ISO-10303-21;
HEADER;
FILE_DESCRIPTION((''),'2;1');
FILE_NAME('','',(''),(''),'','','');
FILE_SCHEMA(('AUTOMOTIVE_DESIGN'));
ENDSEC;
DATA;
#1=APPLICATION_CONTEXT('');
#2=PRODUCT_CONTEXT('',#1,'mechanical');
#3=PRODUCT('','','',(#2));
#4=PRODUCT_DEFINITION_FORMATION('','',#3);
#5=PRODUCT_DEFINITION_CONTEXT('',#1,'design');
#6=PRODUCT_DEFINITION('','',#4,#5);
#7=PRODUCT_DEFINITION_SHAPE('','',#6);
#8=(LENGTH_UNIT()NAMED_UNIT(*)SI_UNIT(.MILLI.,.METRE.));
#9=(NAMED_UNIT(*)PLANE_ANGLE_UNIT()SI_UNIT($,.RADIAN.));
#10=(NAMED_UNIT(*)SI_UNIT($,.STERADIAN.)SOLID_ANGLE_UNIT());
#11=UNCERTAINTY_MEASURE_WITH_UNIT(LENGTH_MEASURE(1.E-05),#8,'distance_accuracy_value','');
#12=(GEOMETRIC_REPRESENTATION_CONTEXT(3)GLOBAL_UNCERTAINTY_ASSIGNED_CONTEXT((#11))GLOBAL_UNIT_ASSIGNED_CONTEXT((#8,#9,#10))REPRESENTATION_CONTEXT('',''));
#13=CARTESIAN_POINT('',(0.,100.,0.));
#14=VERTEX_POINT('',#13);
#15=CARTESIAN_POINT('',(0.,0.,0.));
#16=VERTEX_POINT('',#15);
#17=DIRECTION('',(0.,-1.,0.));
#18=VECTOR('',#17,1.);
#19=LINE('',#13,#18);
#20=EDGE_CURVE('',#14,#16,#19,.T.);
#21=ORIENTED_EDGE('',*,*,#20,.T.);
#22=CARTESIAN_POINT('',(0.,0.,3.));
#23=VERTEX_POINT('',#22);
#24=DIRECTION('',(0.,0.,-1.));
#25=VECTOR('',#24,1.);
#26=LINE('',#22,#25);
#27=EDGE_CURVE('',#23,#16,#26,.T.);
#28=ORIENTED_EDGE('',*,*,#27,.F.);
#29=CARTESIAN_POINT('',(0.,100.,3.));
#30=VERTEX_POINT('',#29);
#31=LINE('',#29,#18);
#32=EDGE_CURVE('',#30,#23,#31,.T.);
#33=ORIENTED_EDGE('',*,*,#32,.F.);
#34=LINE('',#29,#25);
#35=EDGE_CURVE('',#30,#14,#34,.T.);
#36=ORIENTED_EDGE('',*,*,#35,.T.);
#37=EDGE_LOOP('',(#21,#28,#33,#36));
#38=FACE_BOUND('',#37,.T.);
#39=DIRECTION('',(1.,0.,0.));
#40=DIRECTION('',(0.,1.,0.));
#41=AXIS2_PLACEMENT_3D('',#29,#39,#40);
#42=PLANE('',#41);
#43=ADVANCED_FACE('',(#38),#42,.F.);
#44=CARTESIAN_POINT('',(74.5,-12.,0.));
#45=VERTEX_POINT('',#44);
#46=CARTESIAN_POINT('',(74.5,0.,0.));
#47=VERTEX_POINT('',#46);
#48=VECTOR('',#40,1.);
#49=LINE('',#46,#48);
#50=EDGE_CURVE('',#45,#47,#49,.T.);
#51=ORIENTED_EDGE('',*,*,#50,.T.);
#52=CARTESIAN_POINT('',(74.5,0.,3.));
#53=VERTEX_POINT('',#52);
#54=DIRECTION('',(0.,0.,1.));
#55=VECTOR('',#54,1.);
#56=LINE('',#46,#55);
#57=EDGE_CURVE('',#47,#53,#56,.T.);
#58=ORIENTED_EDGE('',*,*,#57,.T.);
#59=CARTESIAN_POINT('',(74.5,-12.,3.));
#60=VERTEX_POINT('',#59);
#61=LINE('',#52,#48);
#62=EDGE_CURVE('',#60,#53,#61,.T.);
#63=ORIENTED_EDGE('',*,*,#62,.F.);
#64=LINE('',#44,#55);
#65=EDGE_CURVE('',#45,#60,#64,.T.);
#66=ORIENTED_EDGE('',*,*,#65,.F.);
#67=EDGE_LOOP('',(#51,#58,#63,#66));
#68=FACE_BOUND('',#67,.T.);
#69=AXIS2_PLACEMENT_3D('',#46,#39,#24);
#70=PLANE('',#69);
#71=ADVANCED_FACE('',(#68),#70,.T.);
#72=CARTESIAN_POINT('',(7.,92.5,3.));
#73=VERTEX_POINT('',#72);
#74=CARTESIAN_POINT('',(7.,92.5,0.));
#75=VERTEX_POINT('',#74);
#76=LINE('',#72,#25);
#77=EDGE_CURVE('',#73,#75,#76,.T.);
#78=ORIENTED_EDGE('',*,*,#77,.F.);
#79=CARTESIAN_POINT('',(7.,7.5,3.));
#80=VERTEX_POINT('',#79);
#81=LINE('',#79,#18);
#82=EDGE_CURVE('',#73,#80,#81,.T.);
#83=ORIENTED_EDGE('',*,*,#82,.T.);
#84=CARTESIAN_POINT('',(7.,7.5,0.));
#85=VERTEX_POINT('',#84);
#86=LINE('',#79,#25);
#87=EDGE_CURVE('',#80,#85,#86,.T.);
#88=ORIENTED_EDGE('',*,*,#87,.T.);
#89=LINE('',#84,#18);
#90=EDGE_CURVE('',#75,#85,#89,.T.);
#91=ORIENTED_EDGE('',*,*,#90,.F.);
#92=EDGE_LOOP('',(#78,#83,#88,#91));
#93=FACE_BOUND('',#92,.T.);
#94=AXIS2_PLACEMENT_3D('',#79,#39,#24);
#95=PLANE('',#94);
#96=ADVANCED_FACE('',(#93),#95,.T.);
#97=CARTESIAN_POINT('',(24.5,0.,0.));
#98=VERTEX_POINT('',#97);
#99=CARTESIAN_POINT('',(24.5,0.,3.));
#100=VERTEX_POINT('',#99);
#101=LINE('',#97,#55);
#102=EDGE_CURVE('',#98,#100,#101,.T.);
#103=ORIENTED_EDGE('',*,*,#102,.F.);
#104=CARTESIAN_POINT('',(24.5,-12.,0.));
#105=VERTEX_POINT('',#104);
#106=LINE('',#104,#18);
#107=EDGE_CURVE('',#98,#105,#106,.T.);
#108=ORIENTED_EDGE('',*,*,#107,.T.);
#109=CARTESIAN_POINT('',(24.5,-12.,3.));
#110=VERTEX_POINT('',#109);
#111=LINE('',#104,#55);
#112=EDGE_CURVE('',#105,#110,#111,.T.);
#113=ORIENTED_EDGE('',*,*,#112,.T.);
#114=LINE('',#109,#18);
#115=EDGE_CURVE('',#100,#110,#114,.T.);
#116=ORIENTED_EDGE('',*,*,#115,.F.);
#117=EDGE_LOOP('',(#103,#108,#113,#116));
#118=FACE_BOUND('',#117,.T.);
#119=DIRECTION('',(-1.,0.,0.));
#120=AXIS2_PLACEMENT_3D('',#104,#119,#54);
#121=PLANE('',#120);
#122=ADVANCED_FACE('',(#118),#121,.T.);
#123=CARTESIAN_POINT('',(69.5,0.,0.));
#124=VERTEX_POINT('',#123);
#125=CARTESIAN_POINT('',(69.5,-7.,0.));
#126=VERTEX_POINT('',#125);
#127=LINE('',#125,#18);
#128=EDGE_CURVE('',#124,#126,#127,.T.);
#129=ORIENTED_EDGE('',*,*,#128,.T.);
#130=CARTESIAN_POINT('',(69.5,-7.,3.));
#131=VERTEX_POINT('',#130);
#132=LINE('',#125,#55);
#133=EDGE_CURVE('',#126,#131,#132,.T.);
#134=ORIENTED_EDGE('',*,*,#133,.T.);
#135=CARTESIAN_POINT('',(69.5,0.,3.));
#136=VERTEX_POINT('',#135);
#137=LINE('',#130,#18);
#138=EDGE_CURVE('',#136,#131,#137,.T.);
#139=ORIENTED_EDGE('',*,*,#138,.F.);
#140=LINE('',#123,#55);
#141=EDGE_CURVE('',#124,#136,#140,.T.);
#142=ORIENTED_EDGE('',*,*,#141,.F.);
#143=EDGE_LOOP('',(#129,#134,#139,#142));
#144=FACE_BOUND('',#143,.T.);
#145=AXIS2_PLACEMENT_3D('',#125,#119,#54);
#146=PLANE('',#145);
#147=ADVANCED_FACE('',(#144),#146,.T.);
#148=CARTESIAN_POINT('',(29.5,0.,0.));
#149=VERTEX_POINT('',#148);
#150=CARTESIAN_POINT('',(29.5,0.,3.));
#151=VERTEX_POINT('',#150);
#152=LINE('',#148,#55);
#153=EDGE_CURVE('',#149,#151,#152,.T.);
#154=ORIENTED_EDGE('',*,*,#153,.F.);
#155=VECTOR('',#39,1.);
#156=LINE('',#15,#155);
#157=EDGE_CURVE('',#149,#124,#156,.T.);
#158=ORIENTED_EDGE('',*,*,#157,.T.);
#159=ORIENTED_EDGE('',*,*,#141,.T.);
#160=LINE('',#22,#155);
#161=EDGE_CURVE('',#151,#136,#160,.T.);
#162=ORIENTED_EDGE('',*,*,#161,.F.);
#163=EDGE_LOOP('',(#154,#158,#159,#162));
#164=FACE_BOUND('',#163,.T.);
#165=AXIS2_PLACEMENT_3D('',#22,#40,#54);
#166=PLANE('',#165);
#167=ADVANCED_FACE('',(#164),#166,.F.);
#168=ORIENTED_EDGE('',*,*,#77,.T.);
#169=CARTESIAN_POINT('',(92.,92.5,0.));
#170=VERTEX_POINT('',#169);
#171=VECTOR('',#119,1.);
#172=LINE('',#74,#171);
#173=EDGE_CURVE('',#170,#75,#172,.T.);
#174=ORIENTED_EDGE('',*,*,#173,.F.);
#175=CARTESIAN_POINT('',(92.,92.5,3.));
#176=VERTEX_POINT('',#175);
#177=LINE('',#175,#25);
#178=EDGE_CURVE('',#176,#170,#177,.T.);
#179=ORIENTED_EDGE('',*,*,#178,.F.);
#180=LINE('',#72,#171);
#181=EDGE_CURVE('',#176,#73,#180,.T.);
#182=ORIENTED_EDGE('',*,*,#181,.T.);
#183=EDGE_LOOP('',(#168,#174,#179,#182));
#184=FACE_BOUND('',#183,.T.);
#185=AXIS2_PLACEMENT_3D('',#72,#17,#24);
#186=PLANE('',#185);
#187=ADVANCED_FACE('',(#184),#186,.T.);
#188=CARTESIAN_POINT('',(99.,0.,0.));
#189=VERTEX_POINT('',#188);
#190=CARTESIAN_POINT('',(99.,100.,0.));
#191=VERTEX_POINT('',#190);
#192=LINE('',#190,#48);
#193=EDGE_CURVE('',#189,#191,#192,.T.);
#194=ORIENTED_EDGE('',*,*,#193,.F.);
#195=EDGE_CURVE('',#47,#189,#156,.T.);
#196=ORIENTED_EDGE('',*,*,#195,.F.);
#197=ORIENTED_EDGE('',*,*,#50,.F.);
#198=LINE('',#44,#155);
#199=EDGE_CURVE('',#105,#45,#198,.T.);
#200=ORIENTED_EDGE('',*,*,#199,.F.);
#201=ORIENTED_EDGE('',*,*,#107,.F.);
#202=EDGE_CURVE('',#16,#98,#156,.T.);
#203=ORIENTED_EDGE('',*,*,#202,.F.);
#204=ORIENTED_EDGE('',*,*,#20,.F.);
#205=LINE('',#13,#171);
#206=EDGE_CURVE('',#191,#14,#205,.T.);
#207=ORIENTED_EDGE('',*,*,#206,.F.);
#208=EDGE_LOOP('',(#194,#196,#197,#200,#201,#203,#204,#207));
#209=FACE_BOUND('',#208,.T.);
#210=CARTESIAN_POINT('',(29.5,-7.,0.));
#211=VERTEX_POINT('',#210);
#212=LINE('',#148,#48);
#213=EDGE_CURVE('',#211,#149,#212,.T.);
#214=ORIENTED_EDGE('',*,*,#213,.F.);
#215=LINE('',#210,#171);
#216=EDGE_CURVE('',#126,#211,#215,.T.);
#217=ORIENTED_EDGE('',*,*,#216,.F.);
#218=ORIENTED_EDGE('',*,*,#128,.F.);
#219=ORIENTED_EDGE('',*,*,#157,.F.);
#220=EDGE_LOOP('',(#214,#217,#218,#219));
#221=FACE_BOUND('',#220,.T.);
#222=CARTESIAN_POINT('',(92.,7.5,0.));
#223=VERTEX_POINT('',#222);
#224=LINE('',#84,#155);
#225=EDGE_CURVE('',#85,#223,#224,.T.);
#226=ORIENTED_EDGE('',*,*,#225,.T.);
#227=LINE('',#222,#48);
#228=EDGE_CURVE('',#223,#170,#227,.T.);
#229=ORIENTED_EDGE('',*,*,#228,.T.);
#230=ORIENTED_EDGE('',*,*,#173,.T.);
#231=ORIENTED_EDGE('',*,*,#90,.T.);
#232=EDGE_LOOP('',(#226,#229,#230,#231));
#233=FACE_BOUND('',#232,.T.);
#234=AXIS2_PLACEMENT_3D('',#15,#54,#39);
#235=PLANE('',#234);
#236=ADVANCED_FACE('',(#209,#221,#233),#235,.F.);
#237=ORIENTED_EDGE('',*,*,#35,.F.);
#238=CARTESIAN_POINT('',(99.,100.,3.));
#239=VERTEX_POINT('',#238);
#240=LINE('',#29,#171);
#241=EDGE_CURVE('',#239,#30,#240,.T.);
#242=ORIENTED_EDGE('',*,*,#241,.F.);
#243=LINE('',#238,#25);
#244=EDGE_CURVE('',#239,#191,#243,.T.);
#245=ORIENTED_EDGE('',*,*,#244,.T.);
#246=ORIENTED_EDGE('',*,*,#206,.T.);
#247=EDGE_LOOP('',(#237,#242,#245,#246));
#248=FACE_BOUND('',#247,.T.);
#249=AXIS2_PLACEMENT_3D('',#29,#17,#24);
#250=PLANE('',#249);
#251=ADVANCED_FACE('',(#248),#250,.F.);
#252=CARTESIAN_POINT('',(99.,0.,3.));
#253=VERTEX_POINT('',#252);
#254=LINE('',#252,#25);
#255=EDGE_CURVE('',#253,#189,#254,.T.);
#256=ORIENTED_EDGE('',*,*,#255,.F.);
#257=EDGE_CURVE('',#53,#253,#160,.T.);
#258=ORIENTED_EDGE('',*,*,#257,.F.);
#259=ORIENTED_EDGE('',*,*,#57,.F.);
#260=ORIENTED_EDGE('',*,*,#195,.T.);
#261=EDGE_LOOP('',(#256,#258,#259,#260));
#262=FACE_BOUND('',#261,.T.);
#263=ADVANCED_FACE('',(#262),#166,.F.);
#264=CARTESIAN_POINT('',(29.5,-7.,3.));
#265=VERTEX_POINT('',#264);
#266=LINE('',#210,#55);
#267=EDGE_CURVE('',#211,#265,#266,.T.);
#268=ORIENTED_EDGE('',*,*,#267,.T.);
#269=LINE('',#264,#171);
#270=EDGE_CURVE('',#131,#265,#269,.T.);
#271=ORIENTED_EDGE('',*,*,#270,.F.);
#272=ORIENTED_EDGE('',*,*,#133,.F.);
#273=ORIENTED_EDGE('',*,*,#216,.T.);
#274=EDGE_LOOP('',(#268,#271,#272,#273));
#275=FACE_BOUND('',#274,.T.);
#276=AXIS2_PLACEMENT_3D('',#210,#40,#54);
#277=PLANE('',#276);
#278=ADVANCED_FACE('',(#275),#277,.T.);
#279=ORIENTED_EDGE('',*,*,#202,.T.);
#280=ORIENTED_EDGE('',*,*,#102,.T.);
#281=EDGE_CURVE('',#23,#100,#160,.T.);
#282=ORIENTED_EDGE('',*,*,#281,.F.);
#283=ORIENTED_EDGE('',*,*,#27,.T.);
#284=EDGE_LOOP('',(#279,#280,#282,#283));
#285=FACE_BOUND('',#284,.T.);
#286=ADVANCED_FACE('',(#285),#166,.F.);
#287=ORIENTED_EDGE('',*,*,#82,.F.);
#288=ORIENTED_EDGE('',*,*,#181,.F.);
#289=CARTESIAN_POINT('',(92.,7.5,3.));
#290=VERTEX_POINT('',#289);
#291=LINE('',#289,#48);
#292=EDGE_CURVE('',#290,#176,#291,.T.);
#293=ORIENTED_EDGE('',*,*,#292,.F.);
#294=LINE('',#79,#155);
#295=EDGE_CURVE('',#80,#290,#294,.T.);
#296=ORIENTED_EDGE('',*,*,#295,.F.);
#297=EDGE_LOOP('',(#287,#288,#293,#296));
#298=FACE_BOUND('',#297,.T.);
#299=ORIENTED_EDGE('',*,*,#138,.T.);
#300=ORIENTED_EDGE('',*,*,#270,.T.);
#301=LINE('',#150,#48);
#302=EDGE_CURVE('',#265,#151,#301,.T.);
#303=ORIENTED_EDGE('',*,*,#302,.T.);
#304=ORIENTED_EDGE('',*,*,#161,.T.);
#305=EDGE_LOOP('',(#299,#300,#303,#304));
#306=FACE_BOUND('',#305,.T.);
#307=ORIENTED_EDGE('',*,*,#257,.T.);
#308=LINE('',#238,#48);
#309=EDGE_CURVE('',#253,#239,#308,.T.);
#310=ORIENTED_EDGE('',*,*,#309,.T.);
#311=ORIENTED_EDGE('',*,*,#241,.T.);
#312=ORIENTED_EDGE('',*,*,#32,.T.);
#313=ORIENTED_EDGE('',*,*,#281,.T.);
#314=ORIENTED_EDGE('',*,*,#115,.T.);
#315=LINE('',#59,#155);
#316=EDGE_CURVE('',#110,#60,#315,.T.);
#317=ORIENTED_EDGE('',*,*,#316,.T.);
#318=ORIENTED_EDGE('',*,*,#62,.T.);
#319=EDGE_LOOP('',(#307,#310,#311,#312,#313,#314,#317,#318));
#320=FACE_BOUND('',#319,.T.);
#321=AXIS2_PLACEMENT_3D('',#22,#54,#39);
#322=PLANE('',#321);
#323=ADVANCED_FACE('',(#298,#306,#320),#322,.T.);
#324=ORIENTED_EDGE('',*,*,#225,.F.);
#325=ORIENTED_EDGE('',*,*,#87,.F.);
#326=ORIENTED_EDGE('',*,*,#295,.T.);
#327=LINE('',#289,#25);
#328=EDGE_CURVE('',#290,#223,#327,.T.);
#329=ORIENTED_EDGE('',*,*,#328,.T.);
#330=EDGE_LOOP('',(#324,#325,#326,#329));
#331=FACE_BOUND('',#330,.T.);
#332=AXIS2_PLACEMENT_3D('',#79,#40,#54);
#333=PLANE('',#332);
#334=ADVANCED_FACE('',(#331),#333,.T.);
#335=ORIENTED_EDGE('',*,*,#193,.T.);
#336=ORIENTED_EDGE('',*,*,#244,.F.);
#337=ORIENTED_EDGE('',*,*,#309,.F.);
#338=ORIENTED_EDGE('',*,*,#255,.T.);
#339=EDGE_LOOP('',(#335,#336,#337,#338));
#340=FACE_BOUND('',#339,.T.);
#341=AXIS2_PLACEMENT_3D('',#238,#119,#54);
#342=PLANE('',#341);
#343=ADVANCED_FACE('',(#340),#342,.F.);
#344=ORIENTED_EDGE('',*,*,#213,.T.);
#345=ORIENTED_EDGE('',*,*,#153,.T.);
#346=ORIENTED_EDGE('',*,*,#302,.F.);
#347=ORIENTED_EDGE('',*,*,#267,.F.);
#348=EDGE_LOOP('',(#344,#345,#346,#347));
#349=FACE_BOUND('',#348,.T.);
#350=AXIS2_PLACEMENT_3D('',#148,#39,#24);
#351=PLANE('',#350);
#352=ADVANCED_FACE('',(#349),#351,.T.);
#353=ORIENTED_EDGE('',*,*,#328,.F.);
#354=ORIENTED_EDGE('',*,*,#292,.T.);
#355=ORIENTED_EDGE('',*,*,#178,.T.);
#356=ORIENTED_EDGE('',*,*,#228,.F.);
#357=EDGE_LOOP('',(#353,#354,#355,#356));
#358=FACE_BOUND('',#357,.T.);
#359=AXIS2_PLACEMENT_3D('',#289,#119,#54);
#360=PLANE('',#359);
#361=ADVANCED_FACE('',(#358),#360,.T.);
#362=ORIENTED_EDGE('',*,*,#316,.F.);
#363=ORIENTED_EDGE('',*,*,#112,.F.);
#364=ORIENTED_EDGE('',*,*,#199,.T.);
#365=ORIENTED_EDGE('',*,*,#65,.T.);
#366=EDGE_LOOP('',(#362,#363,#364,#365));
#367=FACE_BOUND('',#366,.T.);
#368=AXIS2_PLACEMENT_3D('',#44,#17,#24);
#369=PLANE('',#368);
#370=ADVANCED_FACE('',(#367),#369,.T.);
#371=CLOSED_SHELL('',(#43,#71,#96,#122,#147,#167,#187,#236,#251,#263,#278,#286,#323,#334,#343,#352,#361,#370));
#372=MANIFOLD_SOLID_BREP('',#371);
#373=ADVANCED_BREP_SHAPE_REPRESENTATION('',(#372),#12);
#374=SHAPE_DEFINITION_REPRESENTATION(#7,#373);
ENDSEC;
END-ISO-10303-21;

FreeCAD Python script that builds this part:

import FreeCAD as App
import Part
import Sketcher

V = App.Vector
Q = App.Units.Quantity

doc = App.newDocument("Part")
params = doc.addObject("Spreadsheet::Sheet", "Params")
for row, (alias, value) in enumerate([
    ("sketch1_width", "99 mm"),
    ("sketch1_width2", "85 mm"),
    ("sketch1_height", "100 mm"),
    ("pad1_length", "3 mm"),
    ("sketch2_width", "5 mm"),
    ("sketch2_width2", "50 mm"),
    ("sketch2_height", "12 mm"),
    ("sketch2_height2", "7 mm"),
    ("pad2_length", "3 mm"),
], start=1):
    params.set(f"A{row}", alias)
    params.set(f"B{row}", "=" + value)
    params.setAlias(f"B{row}", alias)

body = doc.addObject("PartDesign::Body", "Body")

sketch1 = doc.addObject("Sketcher::SketchObject", "Sketch")
body.addObject(sketch1)
sketch1.AttachmentSupport = (doc.XY_Plane, [""])
sketch1.MapMode = "FlatFace"
sketch1.addGeometry([
    Part.LineSegment(V(0, 100, 0), V(0, 0, 0)),
    Part.LineSegment(V(0, 0, 0), V(99, 0, 0)),
    Part.LineSegment(V(99, 0, 0), V(99, 100, 0)),
    Part.LineSegment(V(99, 100, 0), V(0, 100, 0)),
    Part.LineSegment(V(92, 8, 0), V(7, 8, 0)),
    Part.LineSegment(V(7, 8, 0), V(7, 92, 0)),
    Part.LineSegment(V(7, 92, 0), V(92, 92, 0)),
    Part.LineSegment(V(92, 92, 0), V(92, 8, 0)),
], False)
sketch1.addConstraint([
    Sketcher.Constraint("Coincident", 0, 2, 1, 1),
    Sketcher.Constraint("Coincident", 1, 2, 2, 1),
    Sketcher.Constraint("Coincident", 2, 2, 3, 1),
    Sketcher.Constraint("Coincident", 3, 2, 0, 1),
    Sketcher.Constraint("Coincident", 4, 2, 5, 1),
    Sketcher.Constraint("Coincident", 5, 2, 6, 1),
    Sketcher.Constraint("Coincident", 6, 2, 7, 1),
    Sketcher.Constraint("Coincident", 7, 2, 4, 1),
    Sketcher.Constraint("Vertical", 0),
    Sketcher.Constraint("Horizontal", 1),
    Sketcher.Constraint("Vertical", 2),
    Sketcher.Constraint("Horizontal", 3),
    Sketcher.Constraint("Horizontal", 4),
    Sketcher.Constraint("Vertical", 5),
    Sketcher.Constraint("Horizontal", 6),
    Sketcher.Constraint("Vertical", 7),
    Sketcher.Constraint("Coincident", 0, 2, -1, 1),
    Sketcher.Constraint("Equal", 6, 5),
    Sketcher.Constraint("DistanceX", 1, 1, 1, 2, Q("99 mm")),
    Sketcher.Constraint("DistanceX", 4, 2, 4, 1, Q("85 mm")),
    Sketcher.Constraint("DistanceY", 0, 2, 0, 1, Q("100 mm")),
    Sketcher.Constraint("DistanceX", -1, 1, 4, 2, Q("7 mm")),
    Sketcher.Constraint("DistanceY", -1, 1, 4, 2, Q("7.5 mm")),
])
sketch1.setExpression("Constraints[18]", "Params.sketch1_width")
sketch1.setExpression("Constraints[19]", "Params.sketch1_width2")
sketch1.setExpression("Constraints[20]", "Params.sketch1_height")
pad1 = doc.addObject("PartDesign::Pad", "Pad")
body.addObject(pad1)
pad1.Profile = sketch1
pad1.setExpression("Length", "Params.pad1_length")

sketch2 = doc.addObject("Sketcher::SketchObject", "Sketch001")
body.addObject(sketch2)
sketch2.AttachmentSupport = (doc.XY_Plane, [""])
sketch2.MapMode = "FlatFace"
sketch2.AttachmentOffset = App.Placement(V(0, 0, 3), App.Rotation())
sketch2.addGeometry([
    Part.LineSegment(V(30, 0, 0), V(24, 0, 0)),
    Part.LineSegment(V(24, 0, 0), V(24, -12, 0)),
    Part.LineSegment(V(24, -12, 0), V(74, -12, 0)),
    Part.LineSegment(V(74, -12, 0), V(74, 0, 0)),
    Part.LineSegment(V(74, 0, 0), V(70, 0, 0)),
    Part.LineSegment(V(70, 0, 0), V(70, -7, 0)),
    Part.LineSegment(V(70, -7, 0), V(30, -7, 0)),
    Part.LineSegment(V(30, -7, 0), V(30, 0, 0)),
], False)
sketch2.addConstraint([
    Sketcher.Constraint("Coincident", 0, 2, 1, 1),
    Sketcher.Constraint("Coincident", 1, 2, 2, 1),
    Sketcher.Constraint("Coincident", 2, 2, 3, 1),
    Sketcher.Constraint("Coincident", 3, 2, 4, 1),
    Sketcher.Constraint("Coincident", 4, 2, 5, 1),
    Sketcher.Constraint("Coincident", 5, 2, 6, 1),
    Sketcher.Constraint("Coincident", 6, 2, 7, 1),
    Sketcher.Constraint("Coincident", 7, 2, 0, 1),
    Sketcher.Constraint("Horizontal", 0),
    Sketcher.Constraint("Vertical", 1),
    Sketcher.Constraint("Horizontal", 2),
    Sketcher.Constraint("Vertical", 3),
    Sketcher.Constraint("Horizontal", 4),
    Sketcher.Constraint("Vertical", 5),
    Sketcher.Constraint("Horizontal", 6),
    Sketcher.Constraint("Vertical", 7),
    Sketcher.Constraint("PointOnObject", 0, 2, -1),
    Sketcher.Constraint("PointOnObject", 3, 2, -1),
    Sketcher.Constraint("Equal", 0, 4),
    Sketcher.Constraint("DistanceX", 0, 2, 0, 1, Q("5 mm")),
    Sketcher.Constraint("DistanceX", 2, 1, 2, 2, Q("50 mm")),
    Sketcher.Constraint("DistanceY", 1, 2, 1, 1, Q("12 mm")),
    Sketcher.Constraint("DistanceY", 5, 2, 5, 1, Q("7 mm")),
    Sketcher.Constraint("DistanceX", -1, 1, 0, 2, Q("24.5 mm")),
])
sketch2.setExpression("Constraints[19]", "Params.sketch2_width")
sketch2.setExpression("Constraints[20]", "Params.sketch2_width2")
sketch2.setExpression("Constraints[21]", "Params.sketch2_height")
sketch2.setExpression("Constraints[22]", "Params.sketch2_height2")
pad2 = doc.addObject("PartDesign::Pad", "Pad001")
body.addObject(pad2)
pad2.Profile = sketch2
pad2.setExpression("Length", "Params.pad2_length")
pad2.Reversed = True

doc.recompute()
